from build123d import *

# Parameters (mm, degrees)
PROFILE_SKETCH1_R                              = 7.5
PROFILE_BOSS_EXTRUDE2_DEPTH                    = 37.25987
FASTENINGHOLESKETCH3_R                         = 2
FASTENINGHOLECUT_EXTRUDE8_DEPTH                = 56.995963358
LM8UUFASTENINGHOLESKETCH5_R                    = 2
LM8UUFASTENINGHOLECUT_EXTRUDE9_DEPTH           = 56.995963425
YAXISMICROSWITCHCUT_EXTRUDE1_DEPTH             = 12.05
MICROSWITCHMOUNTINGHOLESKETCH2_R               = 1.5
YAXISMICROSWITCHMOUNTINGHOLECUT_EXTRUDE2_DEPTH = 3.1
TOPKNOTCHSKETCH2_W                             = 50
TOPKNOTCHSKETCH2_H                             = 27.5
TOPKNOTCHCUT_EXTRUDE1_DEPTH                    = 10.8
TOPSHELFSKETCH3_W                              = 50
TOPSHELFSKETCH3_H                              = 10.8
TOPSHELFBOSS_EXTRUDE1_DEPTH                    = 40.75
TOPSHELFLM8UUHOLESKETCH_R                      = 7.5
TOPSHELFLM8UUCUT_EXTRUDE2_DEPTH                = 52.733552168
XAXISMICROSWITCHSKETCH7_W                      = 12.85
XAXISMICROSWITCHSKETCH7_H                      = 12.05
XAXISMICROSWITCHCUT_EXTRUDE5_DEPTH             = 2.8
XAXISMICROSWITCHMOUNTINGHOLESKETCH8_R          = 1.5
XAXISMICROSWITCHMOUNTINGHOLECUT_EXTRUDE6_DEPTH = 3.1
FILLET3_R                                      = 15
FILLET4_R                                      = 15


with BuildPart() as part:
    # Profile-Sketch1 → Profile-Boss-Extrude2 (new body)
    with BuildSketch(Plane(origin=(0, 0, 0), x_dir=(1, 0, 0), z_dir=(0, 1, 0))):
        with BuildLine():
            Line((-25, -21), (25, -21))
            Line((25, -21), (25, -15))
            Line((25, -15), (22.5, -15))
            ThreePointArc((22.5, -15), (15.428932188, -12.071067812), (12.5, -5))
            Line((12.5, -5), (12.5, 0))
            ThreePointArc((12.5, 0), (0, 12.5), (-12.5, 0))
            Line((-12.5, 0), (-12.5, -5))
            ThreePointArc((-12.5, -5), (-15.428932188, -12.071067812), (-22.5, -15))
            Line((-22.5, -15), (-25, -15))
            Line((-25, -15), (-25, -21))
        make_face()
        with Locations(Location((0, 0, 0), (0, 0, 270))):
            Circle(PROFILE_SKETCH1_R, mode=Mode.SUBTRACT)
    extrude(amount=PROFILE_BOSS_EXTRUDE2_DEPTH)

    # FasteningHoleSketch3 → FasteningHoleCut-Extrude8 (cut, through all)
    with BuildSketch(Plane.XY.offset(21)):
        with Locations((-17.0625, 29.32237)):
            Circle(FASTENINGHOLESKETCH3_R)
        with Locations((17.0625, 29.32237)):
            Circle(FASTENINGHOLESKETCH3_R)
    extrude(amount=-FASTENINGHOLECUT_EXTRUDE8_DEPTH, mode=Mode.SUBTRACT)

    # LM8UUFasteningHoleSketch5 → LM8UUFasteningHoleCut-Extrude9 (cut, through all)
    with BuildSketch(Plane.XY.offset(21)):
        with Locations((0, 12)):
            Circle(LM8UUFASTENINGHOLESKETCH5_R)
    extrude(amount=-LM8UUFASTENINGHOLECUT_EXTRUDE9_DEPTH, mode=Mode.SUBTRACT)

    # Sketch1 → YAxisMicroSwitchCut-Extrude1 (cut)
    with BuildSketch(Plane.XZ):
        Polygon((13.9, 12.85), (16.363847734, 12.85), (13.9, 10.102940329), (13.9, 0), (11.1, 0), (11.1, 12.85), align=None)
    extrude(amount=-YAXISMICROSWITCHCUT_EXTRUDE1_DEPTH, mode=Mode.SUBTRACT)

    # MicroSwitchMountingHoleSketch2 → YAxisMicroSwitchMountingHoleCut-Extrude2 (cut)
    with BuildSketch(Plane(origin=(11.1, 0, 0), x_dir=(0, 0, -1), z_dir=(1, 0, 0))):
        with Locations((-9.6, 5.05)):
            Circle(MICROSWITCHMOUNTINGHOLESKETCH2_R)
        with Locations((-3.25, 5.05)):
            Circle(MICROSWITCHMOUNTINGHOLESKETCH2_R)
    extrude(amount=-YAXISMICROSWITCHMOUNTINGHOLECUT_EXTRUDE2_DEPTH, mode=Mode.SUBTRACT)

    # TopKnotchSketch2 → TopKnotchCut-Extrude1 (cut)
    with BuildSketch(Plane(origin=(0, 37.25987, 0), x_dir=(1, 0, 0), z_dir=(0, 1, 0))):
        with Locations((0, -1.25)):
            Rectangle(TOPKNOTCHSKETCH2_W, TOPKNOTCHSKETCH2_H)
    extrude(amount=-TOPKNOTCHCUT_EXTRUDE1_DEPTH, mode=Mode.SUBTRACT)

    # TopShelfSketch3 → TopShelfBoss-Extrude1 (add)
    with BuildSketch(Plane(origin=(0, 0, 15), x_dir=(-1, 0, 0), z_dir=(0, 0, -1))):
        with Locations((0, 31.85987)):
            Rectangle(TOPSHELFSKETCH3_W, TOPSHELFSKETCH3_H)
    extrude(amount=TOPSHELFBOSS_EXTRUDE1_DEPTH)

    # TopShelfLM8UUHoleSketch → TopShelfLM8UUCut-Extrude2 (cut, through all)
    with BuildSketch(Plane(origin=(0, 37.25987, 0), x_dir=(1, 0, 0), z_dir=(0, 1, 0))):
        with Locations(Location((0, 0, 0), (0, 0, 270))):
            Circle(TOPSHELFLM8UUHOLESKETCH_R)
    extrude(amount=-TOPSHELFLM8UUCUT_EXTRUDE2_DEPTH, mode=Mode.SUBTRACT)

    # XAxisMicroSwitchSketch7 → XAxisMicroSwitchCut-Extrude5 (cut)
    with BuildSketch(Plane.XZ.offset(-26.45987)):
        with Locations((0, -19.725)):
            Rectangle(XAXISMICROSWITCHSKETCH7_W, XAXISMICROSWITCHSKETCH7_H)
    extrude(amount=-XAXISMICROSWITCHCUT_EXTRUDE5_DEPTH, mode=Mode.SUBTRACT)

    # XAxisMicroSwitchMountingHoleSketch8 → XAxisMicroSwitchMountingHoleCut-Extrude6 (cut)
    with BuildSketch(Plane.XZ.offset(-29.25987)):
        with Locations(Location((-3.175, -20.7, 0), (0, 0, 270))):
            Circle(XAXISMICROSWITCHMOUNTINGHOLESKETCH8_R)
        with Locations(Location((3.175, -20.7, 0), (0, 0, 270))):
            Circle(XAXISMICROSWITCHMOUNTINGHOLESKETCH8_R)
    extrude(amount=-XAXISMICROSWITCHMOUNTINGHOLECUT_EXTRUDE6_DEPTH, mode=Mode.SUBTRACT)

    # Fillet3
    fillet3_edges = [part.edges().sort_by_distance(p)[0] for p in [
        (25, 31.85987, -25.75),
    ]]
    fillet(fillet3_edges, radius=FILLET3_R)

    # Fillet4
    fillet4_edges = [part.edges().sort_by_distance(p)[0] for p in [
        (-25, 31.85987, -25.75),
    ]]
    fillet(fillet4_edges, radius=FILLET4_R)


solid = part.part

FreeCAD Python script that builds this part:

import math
import FreeCAD as App
import Part
import Sketcher

V = App.Vector
Q = App.Units.Quantity


def edges_at(feature, points):
    """Names of the edges that pass closest to the given points."""
    edges = feature.Shape.Edges
    near = lambda p: min(range(len(edges)), key=lambda i: edges[i].distToShape(Part.Vertex(*p))[0])
    return sorted({f"Edge{near(p) + 1}" for p in points})

doc = App.newDocument("Part")
params = doc.addObject("Spreadsheet::Sheet", "Params")
for row, (alias, value) in enumerate([
    ("sketch1_diameter", "15 mm"),
    ("sketch1_radius", "10 mm"),
    ("sketch1_radius2", "12.5 mm"),
    ("sketch1_width", "50 mm"),
    ("sketch1_height", "6 mm"),
    ("pad1_length", "37.25987 mm"),
    ("sketch2_diameter", "4 mm"),
    ("sketch3_diameter", "4 mm"),
    ("sketch4_width", "2.8 mm"),
    ("sketch4_height", "12.85 mm"),
    ("pocket3_length", "12.05 mm"),
    ("sketch5_diameter", "3 mm"),
    ("pocket4_length", "3.1 mm"),
    ("sketch6_width", "50 mm"),
    ("sketch6_height", "27.5 mm"),
    ("pocket5_length", "10.8 mm"),
    ("sketch7_width", "50 mm"),
    ("sketch7_height", "10.8 mm"),
    ("pad2_length", "40.75 mm"),
    ("sketch8_diameter", "15 mm"),
    ("sketch9_width", "12.85 mm"),
    ("sketch9_height", "12.05 mm"),
    ("pocket7_length", "2.8 mm"),
    ("sketch10_diameter", "3 mm"),
    ("pocket8_length", "3.1 mm"),
    ("fillet_radius", "15 mm"),
    ("fillet2_radius", "15 mm"),
], start=1):
    params.set(f"A{row}", alias)
    params.set(f"B{row}", "=" + value)
    params.setAlias(f"B{row}", alias)

body = doc.addObject("PartDesign::Body", "Body")

sketch1 = body.newObject("Sketcher::SketchObject", "Sketch")
sketch1.AttachmentSupport = (doc.getObject("XZ_Plane"), [""])
sketch1.MapMode = "FlatFace"
sketch1.addGeometry([
    Part.LineSegment(V(-25, 21, 0), V(25, 21, 0)),
    Part.LineSegment(V(25, 21, 0), V(25, 15, 0)),
    Part.LineSegment(V(25, 15, 0), V(22.5, 15, 0)),
    Part.ArcOfCircle(Part.Circle(V(22.5, 5, 0), V(0, 0, 1), 10), math.radians(90), math.radians(180)),
    Part.LineSegment(V(12.5, 5, 0), V(12.5, 0, 0)),
    Part.ArcOfCircle(Part.Circle(V(0, 0, 0), V(0, 0, 1), 12.5), math.radians(180), math.radians(360)),
    Part.LineSegment(V(-12.5, 0, 0), V(-12.5, 5, 0)),
    Part.ArcOfCircle(Part.Circle(V(-22.5, 5, 0), V(0, 0, 1), 10), math.radians(0), math.radians(90)),
    Part.LineSegment(V(-22.5, 15, 0), V(-25, 15, 0)),
    Part.LineSegment(V(-25, 15, 0), V(-25, 21, 0)),
    Part.Circle(V(0, 0, 0), V(0, 0, 1), 7.5),
], False)
sketch1.addConstraint([
    Sketcher.Constraint("Coincident", 0, 2, 1, 1),
    Sketcher.Constraint("Coincident", 1, 2, 2, 1),
    Sketcher.Constraint("Tangent", 2, 2, 3, 1),
    Sketcher.Constraint("Tangent", 3, 2, 4, 1),
    Sketcher.Constraint("Tangent", 4, 2, 5, 2),
    Sketcher.Constraint("Tangent", 5, 1, 6, 1),
    Sketcher.Constraint("Tangent", 6, 2, 7, 1),
    Sketcher.Constraint("Tangent", 7, 2, 8, 1),
    Sketcher.Constraint("Coincident", 8, 2, 9, 1),
    Sketcher.Constraint("Coincident", 9, 2, 0, 1),
    Sketcher.Constraint("Horizontal", 0),
    Sketcher.Constraint("Vertical", 1),
    Sketcher.Constraint("Horizontal", 2),
    Sketcher.Constraint("Vertical", 4),
    Sketcher.Constraint("Vertical", 6),
    Sketcher.Constraint("Horizontal", 8),
    Sketcher.Constraint("Vertical", 9),
    Sketcher.Constraint("Coincident", 5, 3, -1, 1),
    Sketcher.Constraint("Coincident", 10, 3, -1, 1),
    Sketcher.Constraint("Equal", 3, 7),
    Sketcher.Constraint("Symmetric", 1, 2, 8, 2, -2),
    Sketcher.Constraint("Diameter", 10, Q("15 mm")),
    Sketcher.Constraint("Radius", 3, Q("10 mm")),
    Sketcher.Constraint("Radius", 5, Q("12.5 mm")),
    Sketcher.Constraint("DistanceX", 0, 1, 0, 2, Q("50 mm")),
    Sketcher.Constraint("DistanceY", 1, 2, 1, 1, Q("6 mm")),
    Sketcher.Constraint("DistanceY", 4, 2, 4, 1, Q("5 mm")),
])
sketch1.setExpression("Constraints[21]", "Params.sketch1_diameter")
sketch1.setExpression("Constraints[22]", "Params.sketch1_radius")
sketch1.setExpression("Constraints[23]", "Params.sketch1_radius2")
sketch1.setExpression("Constraints[24]", "Params.sketch1_width")
sketch1.setExpression("Constraints[25]", "Params.sketch1_height")
pad1 = body.newObject("PartDesign::Pad", "Pad")
pad1.Profile = sketch1
pad1.setExpression("Length", "Params.pad1_length")
pad1.Reversed = True

sketch2 = body.newObject("Sketcher::SketchObject", "Sketch001")
sketch2.AttachmentSupport = (doc.getObject("XY_Plane"), [""])
sketch2.MapMode = "FlatFace"
sketch2.AttachmentOffset = App.Placement(V(0, 0, 21), App.Rotation())
sketch2.addGeometry([
    Part.Circle(V(-17.1, 29.3, 0), V(0, 0, 1), 2),
    Part.Circle(V(17.1, 29.3, 0), V(0, 0, 1), 2),
], False)
sketch2.addConstraint([
    Sketcher.Constraint("Equal", 0, 1),
    Sketcher.Constraint("Symmetric", 0, 3, 1, 3, -2),
    Sketcher.Constraint("Diameter", 0, Q("4 mm")),
    Sketcher.Constraint("DistanceX", 0, 3, 1, 3, Q("34.125 mm")),
    Sketcher.Constraint("DistanceY", -1, 1, 0, 3, Q("29.32237 mm")),
])
sketch2.setExpression("Constraints[2]", "Params.sketch2_diameter")
pocket1 = body.newObject("PartDesign::Pocket", "Pocket")
pocket1.Profile = sketch2
pocket1.Type = "ThroughAll"

sketch3 = body.newObject("Sketcher::SketchObject", "Sketch002")
sketch3.AttachmentSupport = (doc.getObject("XY_Plane"), [""])
sketch3.MapMode = "FlatFace"
sketch3.AttachmentOffset = App.Placement(V(0, 0, 21), App.Rotation())
sketch3.addGeometry(Part.Circle(V(0, 12, 0), V(0, 0, 1), 2), False)
sketch3.addConstraint([
    Sketcher.Constraint("PointOnObject", 0, 3, -2),
    Sketcher.Constraint("Diameter", 0, Q("4 mm")),
    Sketcher.Constraint("DistanceY", -1, 1, 0, 3, Q("12 mm")),
])
sketch3.setExpression("Constraints[1]", "Params.sketch3_diameter")
pocket2 = body.newObject("PartDesign::Pocket", "Pocket001")
pocket2.Profile = sketch3
pocket2.Type = "ThroughAll"

sketch4 = body.newObject("Sketcher::SketchObject", "Sketch003")
sketch4.AttachmentSupport = (doc.getObject("XZ_Plane"), [""])
sketch4.MapMode = "FlatFace"
sketch4.addGeometry([
    Part.LineSegment(V(16.4, 12.8, 0), V(11.1, 12.8, 0)),
    Part.LineSegment(V(11.1, 12.8, 0), V(11.1, 0, 0)),
    Part.LineSegment(V(11.1, 0, 0), V(13.9, 0, 0)),
    Part.LineSegment(V(13.9, 0, 0), V(13.9, 10.1, 0)),
    Part.LineSegment(V(13.9, 10.1, 0), V(16.4, 12.8, 0)),
], False)
sketch4.addConstraint([
    Sketcher.Constraint("Coincident", 0, 2, 1, 1),
    Sketcher.Constraint("Coincident", 1, 2, 2, 1),
    Sketcher.Constraint("Coincident", 2, 2, 3, 1),
    Sketcher.Constraint("Coincident", 3, 2, 4, 1),
    Sketcher.Constraint("Coincident", 4, 2, 0, 1),
    Sketcher.Constraint("Horizontal", 0),
    Sketcher.Constraint("Vertical", 1),
    Sketcher.Constraint("Horizontal", 2),
    Sketcher.Constraint("Vertical", 3),
    Sketcher.Constraint("PointOnObject", 1, 2, -1),
    Sketcher.Constraint("DistanceX", 2, 1, 2, 2, Q("2.8 mm")),
    Sketcher.Constraint("DistanceY", 1, 2, 1, 1, Q("12.85 mm")),
    Sketcher.Constraint("DistanceX", -1, 1, 0, 2, Q("11.1 mm")),
    Sketcher.Constraint("DistanceY", 3, 1, 3, 2, Q("10.10294 mm")),
    Sketcher.Constraint("DistanceX", 0, 2, 0, 1, Q("5.263848 mm")),
])
sketch4.setExpression("Constraints[10]", "Params.sketch4_width")
sketch4.setExpression("Constraints[11]", "Params.sketch4_height")
pocket3 = body.newObject("PartDesign::Pocket", "Pocket002")
pocket3.Profile = sketch4
pocket3.setExpression("Length", "Params.pocket3_length")

sketch5 = body.newObject("Sketcher::SketchObject", "Sketch004")
sketch5.AttachmentSupport = (doc.getObject("YZ_Plane"), [""])
sketch5.MapMode = "FlatFace"
sketch5.AttachmentOffset = App.Placement(V(0, 0, 11.1), App.Rotation())
sketch5.addGeometry([
    Part.Circle(V(5, 9.6, 0), V(0, 0, 1), 1.5),
    Part.Circle(V(5, 3.2, 0), V(0, 0, 1), 1.5),
], False)
sketch5.addConstraint([
    Sketcher.Constraint("Equal", 0, 1),
    Sketcher.Constraint("Vertical", 0, 3, 1, 3),
    Sketcher.Constraint("Diameter", 0, Q("3 mm")),
    Sketcher.Constraint("DistanceY", -1, 1, 0, 3, Q("9.6 mm")),
    Sketcher.Constraint("DistanceX", -1, 1, 0, 3, Q("5.05 mm")),
    Sketcher.Constraint("DistanceY", -1, 1, 1, 3, Q("3.25 mm")),
])
sketch5.setExpression("Constraints[2]", "Params.sketch5_diameter")
pocket4 = body.newObject("PartDesign::Pocket", "Pocket003")
pocket4.Profile = sketch5
pocket4.setExpression("Length", "Params.pocket4_length")

sketch6 = body.newObject("Sketcher::SketchObject", "Sketch005")
sketch6.AttachmentSupport = (doc.getObject("XZ_Plane"), [""])
sketch6.MapMode = "FlatFace"
sketch6.AttachmentOffset = App.Placement(V(0, 0, -37.25987), App.Rotation())
sketch6.addGeometry([
    Part.LineSegment(V(-25, -12, 0), V(-25, 15, 0)),
    Part.LineSegment(V(-25, 15, 0), V(25, 15, 0)),
    Part.LineSegment(V(25, 15, 0), V(25, -12, 0)),
    Part.LineSegment(V(25, -12, 0), V(-25, -12, 0)),
], False)
sketch6.addConstraint([
    Sketcher.Constraint("Coincident", 0, 2, 1, 1),
    Sketcher.Constraint("Coincident", 1, 2, 2, 1),
    Sketcher.Constraint("Coincident", 2, 2, 3, 1),
    Sketcher.Constraint("Coincident", 3, 2, 0, 1),
    Sketcher.Constraint("Vertical", 0),
    Sketcher.Constraint("Horizontal", 1),
    Sketcher.Constraint("Vertical", 2),
    Sketcher.Constraint("Horizontal", 3),
    Sketcher.Constraint("DistanceX", 1, 1, 1, 2, Q("50 mm")),
    Sketcher.Constraint("DistanceY", 0, 1, 0, 2, Q("27.5 mm")),
    Sketcher.Constraint("DistanceX", 0, 2, -1, 1, Q("25 mm")),
    Sketcher.Constraint("DistanceY", -1, 1, 0, 2, Q("15 mm")),
])
sketch6.setExpression("Constraints[8]", "Params.sketch6_width")
sketch6.setExpression("Constraints[9]", "Params.sketch6_height")
pocket5 = body.newObject("PartDesign::Pocket", "Pocket004")
pocket5.Profile = sketch6
pocket5.setExpression("Length", "Params.pocket5_length")
pocket5.Reversed = True

sketch7 = body.newObject("Sketcher::SketchObject", "Sketch006")
sketch7.AttachmentSupport = (doc.getObject("XY_Plane"), [""])
sketch7.MapMode = "FlatFace"
sketch7.AttachmentOffset = App.Placement(V(0, 0, 15), App.Rotation())
sketch7.addGeometry([
    Part.LineSegment(V(25, 37, 0), V(25, 26, 0)),
    Part.LineSegment(V(25, 26, 0), V(-25, 26, 0)),
    Part.LineSegment(V(-25, 26, 0), V(-25, 37, 0)),
    Part.LineSegment(V(-25, 37, 0), V(25, 37, 0)),
], False)
sketch7.addConstraint([
    Sketcher.Constraint("Coincident", 0, 2, 1, 1),
    Sketcher.Constraint("Coincident", 1, 2, 2, 1),
    Sketcher.Constraint("Coincident", 2, 2, 3, 1),
    Sketcher.Constraint("Coincident", 3, 2, 0, 1),
    Sketcher.Constraint("Vertical", 0),
    Sketcher.Constraint("Horizontal", 1),
    Sketcher.Constraint("Vertical", 2),
    Sketcher.Constraint("Horizontal", 3),
    Sketcher.Constraint("DistanceX", 1, 2, 1, 1, Q("50 mm")),
    Sketcher.Constraint("DistanceY", 0, 2, 0, 1, Q("10.8 mm")),
    Sketcher.Constraint("DistanceX", -1, 1, 0, 2, Q("25 mm")),
    Sketcher.Constraint("DistanceY", -1, 1, 0, 2, Q("26.45987 mm")),
])
sketch7.setExpression("Constraints[8]", "Params.sketch7_width")
sketch7.setExpression("Constraints[9]", "Params.sketch7_height")
pad2 = body.newObject("PartDesign::Pad", "Pad001")
pad2.Profile = sketch7
pad2.setExpression("Length", "Params.pad2_length")
pad2.Reversed = True

sketch8 = body.newObject("Sketcher::SketchObject", "Sketch007")
sketch8.AttachmentSupport = (doc.getObject("XZ_Plane"), [""])
sketch8.MapMode = "FlatFace"
sketch8.AttachmentOffset = App.Placement(V(0, 0, -37.25987), App.Rotation())
sketch8.addGeometry(Part.Circle(V(0, 0, 0), V(0, 0, 1), 8), False)
sketch8.addConstraint([
    Sketcher.Constraint("Coincident", 0, 3, -1, 1),
    Sketcher.Constraint("Diameter", 0, Q("15 mm")),
])
sketch8.setExpression("Constraints[1]", "Params.sketch8_diameter")
pocket6 = body.newObject("PartDesign::Pocket", "Pocket005")
pocket6.Profile = sketch8
pocket6.Type = "ThroughAll"
pocket6.Reversed = True

sketch9 = body.newObject("Sketcher::SketchObject", "Sketch008")
sketch9.AttachmentSupport = (doc.getObject("XZ_Plane"), [""])
sketch9.MapMode = "FlatFace"
sketch9.AttachmentOffset = App.Placement(V(0, 0, -26.45987), App.Rotation())
sketch9.addGeometry([
    Part.LineSegment(V(-6, -14, 0), V(-6, -26, 0)),
    Part.LineSegment(V(-6, -26, 0), V(6, -26, 0)),
    Part.LineSegment(V(6, -26, 0), V(6, -14, 0)),
    Part.LineSegment(V(6, -14, 0), V(-6, -14, 0)),
], False)
sketch9.addConstraint([
    Sketcher.Constraint("Coincident", 0, 2, 1, 1),
    Sketcher.Constraint("Coincident", 1, 2, 2, 1),
    Sketcher.Constraint("Coincident", 2, 2, 3, 1),
    Sketcher.Constraint("Coincident", 3, 2, 0, 1),
    Sketcher.Constraint("Vertical", 0),
    Sketcher.Constraint("Horizontal", 1),
    Sketcher.Constraint("Vertical", 2),
    Sketcher.Constraint("Horizontal", 3),
    Sketcher.Constraint("DistanceX", 1, 1, 1, 2, Q("12.85 mm")),
    Sketcher.Constraint("DistanceY", 0, 2, 0, 1, Q("12.05 mm")),
    Sketcher.Constraint("DistanceY", 2, 2, -1, 1, Q("13.7 mm")),
    Sketcher.Constraint("DistanceX", 0, 2, -1, 1, Q("6.425 mm")),
])
sketch9.setExpression("Constraints[8]", "Params.sketch9_width")
sketch9.setExpression("Constraints[9]", "Params.sketch9_height")
pocket7 = body.newObject("PartDesign::Pocket", "Pocket006")
pocket7.Profile = sketch9
pocket7.setExpression("Length", "Params.pocket7_length")

sketch10 = body.newObject("Sketcher::SketchObject", "Sketch009")
sketch10.AttachmentSupport = (doc.getObject("XZ_Plane"), [""])
sketch10.MapMode = "FlatFace"
sketch10.AttachmentOffset = App.Placement(V(0, 0, -29.25987), App.Rotation())
sketch10.addGeometry([
    Part.Circle(V(-3.2, -20.7, 0), V(0, 0, 1), 1.5),
    Part.Circle(V(3.2, -20.7, 0), V(0, 0, 1), 1.5),
], False)
sketch10.addConstraint([
    Sketcher.Constraint("Equal", 0, 1),
    Sketcher.Constraint("Symmetric", 0, 3, 1, 3, -2),
    Sketcher.Constraint("Diameter", 0, Q("3 mm")),
    Sketcher.Constraint("DistanceY", 0, 3, -1, 1, Q("20.7 mm")),
    Sketcher.Constraint("DistanceX", 0, 3, 1, 3, Q("6.35 mm")),
])
sketch10.setExpression("Constraints[2]", "Params.sketch10_diameter")
pocket8 = body.newObject("PartDesign::Pocket", "Pocket007")
pocket8.Profile = sketch10
pocket8.setExpression("Length", "Params.pocket8_length")
doc.recompute()

fillet = body.newObject("PartDesign::Fillet", "Fillet")
fillet.Base = (pocket8, edges_at(pocket8, [(25, 31.86, -25.75)]))
fillet.setExpression("Radius", "Params.fillet_radius")
doc.recompute()

fillet2 = body.newObject("PartDesign::Fillet", "Fillet001")
fillet2.Base = (fillet, edges_at(fillet, [(-25, 31.86, -25.75)]))
fillet2.setExpression("Radius", "Params.fillet2_radius")

doc.recompute()
